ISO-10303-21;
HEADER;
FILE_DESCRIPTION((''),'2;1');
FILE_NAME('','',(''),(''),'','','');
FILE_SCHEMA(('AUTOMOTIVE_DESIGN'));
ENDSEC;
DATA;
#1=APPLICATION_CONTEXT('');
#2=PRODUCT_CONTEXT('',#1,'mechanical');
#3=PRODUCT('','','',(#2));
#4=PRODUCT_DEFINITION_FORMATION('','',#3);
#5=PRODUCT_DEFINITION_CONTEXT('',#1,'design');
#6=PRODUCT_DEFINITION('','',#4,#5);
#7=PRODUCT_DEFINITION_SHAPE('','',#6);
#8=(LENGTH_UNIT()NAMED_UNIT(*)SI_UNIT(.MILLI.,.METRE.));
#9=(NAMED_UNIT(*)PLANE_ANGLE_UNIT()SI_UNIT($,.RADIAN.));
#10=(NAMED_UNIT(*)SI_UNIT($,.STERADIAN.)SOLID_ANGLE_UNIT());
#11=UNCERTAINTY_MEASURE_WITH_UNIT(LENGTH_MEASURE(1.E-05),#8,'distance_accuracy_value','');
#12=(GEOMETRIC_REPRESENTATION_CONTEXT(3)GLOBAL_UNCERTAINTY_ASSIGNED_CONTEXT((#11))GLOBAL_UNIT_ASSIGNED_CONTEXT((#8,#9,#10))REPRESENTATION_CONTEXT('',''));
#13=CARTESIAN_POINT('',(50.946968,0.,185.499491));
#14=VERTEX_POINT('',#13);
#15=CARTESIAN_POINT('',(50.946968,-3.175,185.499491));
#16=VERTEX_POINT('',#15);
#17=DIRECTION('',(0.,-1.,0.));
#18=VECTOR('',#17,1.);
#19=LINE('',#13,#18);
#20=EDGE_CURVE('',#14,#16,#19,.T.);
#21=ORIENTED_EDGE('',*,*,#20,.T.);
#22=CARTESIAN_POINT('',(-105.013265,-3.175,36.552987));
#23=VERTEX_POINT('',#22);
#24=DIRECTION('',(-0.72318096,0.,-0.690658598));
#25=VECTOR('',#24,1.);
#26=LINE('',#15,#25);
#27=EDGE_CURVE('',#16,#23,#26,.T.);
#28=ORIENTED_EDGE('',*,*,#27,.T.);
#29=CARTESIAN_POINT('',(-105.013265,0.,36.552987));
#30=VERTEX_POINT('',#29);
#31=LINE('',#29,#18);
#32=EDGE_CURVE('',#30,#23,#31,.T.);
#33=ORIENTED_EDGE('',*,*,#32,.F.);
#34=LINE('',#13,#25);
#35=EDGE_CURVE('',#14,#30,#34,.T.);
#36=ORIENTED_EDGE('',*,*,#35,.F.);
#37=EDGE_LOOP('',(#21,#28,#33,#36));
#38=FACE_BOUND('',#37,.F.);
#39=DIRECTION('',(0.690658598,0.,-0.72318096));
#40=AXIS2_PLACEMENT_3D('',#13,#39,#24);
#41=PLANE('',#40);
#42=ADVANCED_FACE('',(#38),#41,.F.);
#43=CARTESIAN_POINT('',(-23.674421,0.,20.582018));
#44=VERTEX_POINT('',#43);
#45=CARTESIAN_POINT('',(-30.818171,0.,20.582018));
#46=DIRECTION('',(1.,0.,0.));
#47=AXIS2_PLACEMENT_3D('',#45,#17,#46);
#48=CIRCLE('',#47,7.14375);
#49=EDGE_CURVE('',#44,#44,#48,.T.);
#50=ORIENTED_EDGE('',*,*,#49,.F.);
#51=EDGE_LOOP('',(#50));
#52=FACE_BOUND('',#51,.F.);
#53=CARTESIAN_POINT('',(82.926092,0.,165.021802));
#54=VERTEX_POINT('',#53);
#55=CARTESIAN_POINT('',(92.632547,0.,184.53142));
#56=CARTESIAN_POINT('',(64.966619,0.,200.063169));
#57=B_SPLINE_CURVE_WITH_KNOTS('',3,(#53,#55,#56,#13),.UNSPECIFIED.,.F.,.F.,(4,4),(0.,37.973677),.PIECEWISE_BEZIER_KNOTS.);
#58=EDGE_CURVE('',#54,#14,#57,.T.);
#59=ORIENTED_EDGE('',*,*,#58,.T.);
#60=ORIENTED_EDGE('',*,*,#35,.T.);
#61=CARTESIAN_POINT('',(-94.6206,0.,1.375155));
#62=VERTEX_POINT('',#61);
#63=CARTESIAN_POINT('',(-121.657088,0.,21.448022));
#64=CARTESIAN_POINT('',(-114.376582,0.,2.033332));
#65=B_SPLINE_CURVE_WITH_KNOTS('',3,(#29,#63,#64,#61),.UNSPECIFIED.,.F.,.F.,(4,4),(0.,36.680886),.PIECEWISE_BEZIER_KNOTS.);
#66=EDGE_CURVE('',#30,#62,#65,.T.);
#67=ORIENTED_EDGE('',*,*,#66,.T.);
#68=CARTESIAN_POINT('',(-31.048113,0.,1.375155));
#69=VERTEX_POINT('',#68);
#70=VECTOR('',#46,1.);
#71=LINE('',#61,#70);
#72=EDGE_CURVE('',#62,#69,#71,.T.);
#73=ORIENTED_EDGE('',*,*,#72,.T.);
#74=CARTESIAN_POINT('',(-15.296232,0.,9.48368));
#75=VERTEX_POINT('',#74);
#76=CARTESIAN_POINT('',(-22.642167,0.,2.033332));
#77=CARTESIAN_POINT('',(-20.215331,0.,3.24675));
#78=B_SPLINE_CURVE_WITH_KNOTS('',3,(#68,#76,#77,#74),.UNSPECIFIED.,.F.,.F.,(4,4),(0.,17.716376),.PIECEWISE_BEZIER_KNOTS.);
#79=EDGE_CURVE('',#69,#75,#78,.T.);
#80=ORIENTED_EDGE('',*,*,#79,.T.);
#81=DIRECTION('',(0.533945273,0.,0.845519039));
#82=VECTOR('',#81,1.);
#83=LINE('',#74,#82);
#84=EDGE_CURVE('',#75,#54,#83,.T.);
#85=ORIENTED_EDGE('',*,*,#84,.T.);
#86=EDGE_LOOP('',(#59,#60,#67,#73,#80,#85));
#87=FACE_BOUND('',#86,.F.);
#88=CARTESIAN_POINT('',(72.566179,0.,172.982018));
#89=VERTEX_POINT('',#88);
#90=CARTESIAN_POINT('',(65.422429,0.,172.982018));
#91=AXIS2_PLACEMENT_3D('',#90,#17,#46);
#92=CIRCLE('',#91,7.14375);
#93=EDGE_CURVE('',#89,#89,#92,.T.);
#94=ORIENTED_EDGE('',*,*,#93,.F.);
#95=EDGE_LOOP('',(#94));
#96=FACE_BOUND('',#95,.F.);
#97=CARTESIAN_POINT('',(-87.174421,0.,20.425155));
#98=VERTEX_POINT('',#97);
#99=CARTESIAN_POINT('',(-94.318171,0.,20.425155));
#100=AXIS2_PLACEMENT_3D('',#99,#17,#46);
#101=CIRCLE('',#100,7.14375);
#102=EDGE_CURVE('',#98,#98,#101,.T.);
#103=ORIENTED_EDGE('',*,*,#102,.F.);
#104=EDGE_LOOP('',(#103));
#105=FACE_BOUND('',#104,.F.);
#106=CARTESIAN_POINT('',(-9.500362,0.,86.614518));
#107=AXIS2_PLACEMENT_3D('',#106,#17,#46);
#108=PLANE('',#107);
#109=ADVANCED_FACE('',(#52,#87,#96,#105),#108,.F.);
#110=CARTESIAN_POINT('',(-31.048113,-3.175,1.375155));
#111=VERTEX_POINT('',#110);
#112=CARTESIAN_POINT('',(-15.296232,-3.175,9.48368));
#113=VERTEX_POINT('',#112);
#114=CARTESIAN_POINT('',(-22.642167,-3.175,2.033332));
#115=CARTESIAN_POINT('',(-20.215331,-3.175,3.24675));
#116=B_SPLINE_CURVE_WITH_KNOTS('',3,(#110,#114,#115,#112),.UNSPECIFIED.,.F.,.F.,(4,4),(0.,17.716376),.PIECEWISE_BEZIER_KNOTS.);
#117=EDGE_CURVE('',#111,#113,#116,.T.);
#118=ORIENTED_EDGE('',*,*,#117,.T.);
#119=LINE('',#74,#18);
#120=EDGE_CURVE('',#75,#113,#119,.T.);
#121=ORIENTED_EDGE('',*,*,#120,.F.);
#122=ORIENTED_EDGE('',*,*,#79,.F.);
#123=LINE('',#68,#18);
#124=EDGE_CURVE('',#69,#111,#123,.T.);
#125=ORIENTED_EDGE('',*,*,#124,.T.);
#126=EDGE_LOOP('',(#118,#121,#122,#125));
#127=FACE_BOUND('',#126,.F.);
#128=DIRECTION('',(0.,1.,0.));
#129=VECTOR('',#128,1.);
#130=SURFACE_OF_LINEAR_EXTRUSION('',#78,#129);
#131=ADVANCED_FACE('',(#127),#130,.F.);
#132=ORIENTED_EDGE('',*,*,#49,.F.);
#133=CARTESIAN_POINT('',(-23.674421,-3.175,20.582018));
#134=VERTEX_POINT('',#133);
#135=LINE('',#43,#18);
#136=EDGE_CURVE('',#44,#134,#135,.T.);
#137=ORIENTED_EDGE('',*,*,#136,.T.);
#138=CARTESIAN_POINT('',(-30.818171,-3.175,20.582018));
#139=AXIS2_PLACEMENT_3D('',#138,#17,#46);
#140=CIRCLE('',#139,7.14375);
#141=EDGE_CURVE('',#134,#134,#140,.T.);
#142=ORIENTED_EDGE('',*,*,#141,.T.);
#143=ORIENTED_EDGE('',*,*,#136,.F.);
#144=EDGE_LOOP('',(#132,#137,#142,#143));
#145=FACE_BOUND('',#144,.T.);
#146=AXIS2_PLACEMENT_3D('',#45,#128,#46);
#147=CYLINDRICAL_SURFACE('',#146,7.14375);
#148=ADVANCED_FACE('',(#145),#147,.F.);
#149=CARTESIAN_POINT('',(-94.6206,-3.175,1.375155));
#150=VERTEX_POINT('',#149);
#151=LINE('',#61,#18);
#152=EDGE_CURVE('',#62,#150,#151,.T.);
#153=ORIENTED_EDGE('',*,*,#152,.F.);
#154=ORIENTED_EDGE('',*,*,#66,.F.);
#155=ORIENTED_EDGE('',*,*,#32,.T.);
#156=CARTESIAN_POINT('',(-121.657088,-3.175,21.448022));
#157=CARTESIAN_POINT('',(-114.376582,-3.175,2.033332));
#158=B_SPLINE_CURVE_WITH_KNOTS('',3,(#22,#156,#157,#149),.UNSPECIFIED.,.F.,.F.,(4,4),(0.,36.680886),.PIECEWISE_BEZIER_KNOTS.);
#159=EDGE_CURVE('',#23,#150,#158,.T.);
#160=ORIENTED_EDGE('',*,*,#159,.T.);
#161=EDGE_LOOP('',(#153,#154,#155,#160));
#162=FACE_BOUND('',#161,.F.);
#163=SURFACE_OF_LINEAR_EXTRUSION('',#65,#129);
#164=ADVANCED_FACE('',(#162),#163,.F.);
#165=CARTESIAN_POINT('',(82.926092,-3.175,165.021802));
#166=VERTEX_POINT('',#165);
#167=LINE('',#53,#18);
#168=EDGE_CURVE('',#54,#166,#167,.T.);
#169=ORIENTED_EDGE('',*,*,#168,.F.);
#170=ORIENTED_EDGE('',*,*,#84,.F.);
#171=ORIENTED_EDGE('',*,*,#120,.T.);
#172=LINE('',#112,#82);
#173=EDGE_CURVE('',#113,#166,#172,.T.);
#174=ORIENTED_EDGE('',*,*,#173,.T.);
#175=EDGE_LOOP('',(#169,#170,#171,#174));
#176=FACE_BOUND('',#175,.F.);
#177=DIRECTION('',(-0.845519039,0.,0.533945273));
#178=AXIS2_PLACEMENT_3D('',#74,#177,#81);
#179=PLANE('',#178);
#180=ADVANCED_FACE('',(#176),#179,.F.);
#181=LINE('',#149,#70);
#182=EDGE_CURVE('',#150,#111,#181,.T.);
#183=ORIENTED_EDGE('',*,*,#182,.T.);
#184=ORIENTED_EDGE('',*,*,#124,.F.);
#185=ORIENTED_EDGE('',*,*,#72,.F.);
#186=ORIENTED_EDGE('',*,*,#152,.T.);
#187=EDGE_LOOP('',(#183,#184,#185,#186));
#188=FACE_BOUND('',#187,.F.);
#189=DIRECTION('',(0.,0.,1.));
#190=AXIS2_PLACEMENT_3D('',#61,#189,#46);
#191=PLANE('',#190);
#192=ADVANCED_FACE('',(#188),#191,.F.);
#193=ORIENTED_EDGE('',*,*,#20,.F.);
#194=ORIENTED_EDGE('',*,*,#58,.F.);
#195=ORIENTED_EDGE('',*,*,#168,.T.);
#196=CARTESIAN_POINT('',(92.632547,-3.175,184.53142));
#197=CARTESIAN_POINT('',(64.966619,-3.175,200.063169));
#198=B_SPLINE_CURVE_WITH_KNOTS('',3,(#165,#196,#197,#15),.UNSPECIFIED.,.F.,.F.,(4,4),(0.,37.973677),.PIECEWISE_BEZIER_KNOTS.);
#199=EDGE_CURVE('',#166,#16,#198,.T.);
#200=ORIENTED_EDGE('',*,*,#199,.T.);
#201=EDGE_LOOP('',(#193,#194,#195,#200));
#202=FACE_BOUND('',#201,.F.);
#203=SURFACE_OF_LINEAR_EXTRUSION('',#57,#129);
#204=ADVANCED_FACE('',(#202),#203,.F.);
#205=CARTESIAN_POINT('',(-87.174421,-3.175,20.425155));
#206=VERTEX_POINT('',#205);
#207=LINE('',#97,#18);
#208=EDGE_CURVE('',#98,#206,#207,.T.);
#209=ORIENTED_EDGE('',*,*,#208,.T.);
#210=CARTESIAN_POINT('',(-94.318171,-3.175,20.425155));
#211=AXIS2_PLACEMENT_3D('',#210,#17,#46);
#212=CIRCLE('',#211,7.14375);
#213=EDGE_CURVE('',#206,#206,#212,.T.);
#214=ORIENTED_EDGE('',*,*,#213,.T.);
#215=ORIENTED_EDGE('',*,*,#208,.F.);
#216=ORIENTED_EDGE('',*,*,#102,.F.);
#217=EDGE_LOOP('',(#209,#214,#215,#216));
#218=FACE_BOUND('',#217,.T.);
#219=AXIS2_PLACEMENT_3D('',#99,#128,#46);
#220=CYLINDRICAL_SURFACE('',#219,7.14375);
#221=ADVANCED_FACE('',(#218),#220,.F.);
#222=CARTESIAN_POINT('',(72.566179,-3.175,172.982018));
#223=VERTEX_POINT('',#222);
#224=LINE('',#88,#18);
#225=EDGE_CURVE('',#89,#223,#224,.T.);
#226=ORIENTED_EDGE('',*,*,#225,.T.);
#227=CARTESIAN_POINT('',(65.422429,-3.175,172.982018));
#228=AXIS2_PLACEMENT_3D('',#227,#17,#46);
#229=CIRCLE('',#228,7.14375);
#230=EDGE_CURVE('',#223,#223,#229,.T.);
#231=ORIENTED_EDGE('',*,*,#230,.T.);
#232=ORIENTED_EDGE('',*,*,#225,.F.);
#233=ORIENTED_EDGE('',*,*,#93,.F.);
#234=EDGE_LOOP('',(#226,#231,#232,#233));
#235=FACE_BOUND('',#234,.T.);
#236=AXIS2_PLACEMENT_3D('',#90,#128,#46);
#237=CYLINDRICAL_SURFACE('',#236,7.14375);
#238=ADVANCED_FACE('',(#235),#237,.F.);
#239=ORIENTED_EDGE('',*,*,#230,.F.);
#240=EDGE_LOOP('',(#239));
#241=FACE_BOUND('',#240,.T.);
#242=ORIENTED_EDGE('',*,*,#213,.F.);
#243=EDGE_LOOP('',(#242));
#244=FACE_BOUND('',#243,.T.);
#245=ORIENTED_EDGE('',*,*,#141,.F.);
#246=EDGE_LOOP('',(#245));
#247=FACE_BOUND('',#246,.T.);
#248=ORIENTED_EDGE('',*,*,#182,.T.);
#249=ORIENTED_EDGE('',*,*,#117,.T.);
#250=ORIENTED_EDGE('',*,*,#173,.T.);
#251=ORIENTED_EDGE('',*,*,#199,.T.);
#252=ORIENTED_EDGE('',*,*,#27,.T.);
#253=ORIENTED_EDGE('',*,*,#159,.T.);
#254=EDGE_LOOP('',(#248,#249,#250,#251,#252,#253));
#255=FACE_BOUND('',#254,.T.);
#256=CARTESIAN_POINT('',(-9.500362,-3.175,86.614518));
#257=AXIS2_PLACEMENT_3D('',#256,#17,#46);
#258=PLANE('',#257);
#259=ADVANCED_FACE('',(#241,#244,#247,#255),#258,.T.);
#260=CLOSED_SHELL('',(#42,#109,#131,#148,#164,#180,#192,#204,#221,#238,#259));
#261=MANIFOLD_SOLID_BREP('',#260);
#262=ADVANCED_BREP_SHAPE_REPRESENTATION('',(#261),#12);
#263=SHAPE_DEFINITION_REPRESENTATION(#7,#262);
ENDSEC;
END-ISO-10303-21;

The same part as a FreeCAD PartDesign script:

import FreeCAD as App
import Part
import Sketcher
from FreeCAD import Vector
Q = App.Units.Quantity

doc = App.newDocument("Part")
body = doc.addObject("PartDesign::Body", "Body")

sketch1 = doc.addObject("Sketcher::SketchObject", "Sketch")
body.addObject(sketch1)
sketch1.AttachmentSupport = (doc.XZ_Plane, [""])
sketch1.MapMode = "FlatFace"
sketch1.addGeometry(Part.BSplineCurve([Vector(82.926092, 165.021802, 0), Vector(92.632547, 184.53142, 0), Vector(64.966619, 200.063169, 0), Vector(50.946968, 185.499491, 0)], [4, 4], [0, 37.973677], False, 3, [1, 1, 1, 1], False), False)
sketch1.addGeometry(Part.LineSegment(Vector(50.946968, 185.499491, 0), Vector(-105.013265, 36.552987, 0)), False)
sketch1.addGeometry(Part.BSplineCurve([Vector(-105.013265, 36.552987, 0), Vector(-121.657088, 21.448022, 0), Vector(-114.376582, 2.033332, 0), Vector(-94.6206, 1.375155, 0)], [4, 4], [0, 36.680886], False, 3, [1, 1, 1, 1], False), False)
sketch1.addGeometry(Part.LineSegment(Vector(-94.6206, 1.375155, 0), Vector(-31.048113, 1.375155, 0)), False)
sketch1.addGeometry(Part.BSplineCurve([Vector(-31.048113, 1.375155, 0), Vector(-22.642167, 2.033332, 0), Vector(-20.215331, 3.24675, 0), Vector(-15.296232, 9.48368, 0)], [4, 4], [0, 17.716376], False, 3, [1, 1, 1, 1], False), False)
sketch1.addGeometry(Part.LineSegment(Vector(-15.296232, 9.48368, 0), Vector(82.926092, 165.021802, 0)), False)
sketch1.addGeometry(Part.Circle(Vector(-94.318171, 20.425155, 0), Vector(0, 0, 1), 7.14375), False)
sketch1.addGeometry(Part.Circle(Vector(-30.818171, 20.582018, 0), Vector(0, 0, 1), 7.14375), False)
sketch1.addGeometry(Part.Circle(Vector(65.422429, 172.982018, 0), Vector(0, 0, 1), 7.14375), False)
sketch1.addConstraint(Sketcher.Constraint("Block", 0))
sketch1.addConstraint(Sketcher.Constraint("Block", 2))
sketch1.addConstraint(Sketcher.Constraint("Block", 4))
sketch1.addConstraint(Sketcher.Constraint("Coincident", 0, 2, 1, 1))
sketch1.addConstraint(Sketcher.Constraint("Coincident", 1, 2, 2, 1))
sketch1.addConstraint(Sketcher.Constraint("Coincident", 2, 2, 3, 1))
sketch1.addConstraint(Sketcher.Constraint("Coincident", 3, 2, 4, 1))
sketch1.addConstraint(Sketcher.Constraint("Coincident", 4, 2, 5, 1))
sketch1.addConstraint(Sketcher.Constraint("Coincident", 5, 2, 0, 1))
sketch1.addConstraint(Sketcher.Constraint("Equal", 6, 7))
sketch1.addConstraint(Sketcher.Constraint("Equal", 7, 8))
sketch1.addConstraint(Sketcher.Constraint("Diameter", 6, Q("0.5625 in")))
sketch1.addConstraint(Sketcher.Constraint("DistanceY", 7, 3, 8, 3, Q("6 in")))
sketch1.addConstraint(Sketcher.Constraint("DistanceX", 6, 3, 7, 3, Q("2.5 in")))
sketch1.addConstraint(Sketcher.Constraint("DistanceY", 3, 2, 6, 3, Q("0.75 in")))
sketch1.addConstraint(Sketcher.Constraint("DistanceX", 7, 3, 8, 3, Q("3.789 in")))
sketch1.addConstraint(Sketcher.Constraint("DistanceX", 6, 3, -1, 1, Q("94.318171 mm")))
sketch1.addConstraint(Sketcher.Constraint("DistanceY", -1, 1, 7, 3, Q("20.582018 mm")))
pad1 = doc.addObject("PartDesign::Pad", "Pad")
body.addObject(pad1)
pad1.Profile = sketch1
pad1.Length = Q("0.125 in")

doc.recompute()
